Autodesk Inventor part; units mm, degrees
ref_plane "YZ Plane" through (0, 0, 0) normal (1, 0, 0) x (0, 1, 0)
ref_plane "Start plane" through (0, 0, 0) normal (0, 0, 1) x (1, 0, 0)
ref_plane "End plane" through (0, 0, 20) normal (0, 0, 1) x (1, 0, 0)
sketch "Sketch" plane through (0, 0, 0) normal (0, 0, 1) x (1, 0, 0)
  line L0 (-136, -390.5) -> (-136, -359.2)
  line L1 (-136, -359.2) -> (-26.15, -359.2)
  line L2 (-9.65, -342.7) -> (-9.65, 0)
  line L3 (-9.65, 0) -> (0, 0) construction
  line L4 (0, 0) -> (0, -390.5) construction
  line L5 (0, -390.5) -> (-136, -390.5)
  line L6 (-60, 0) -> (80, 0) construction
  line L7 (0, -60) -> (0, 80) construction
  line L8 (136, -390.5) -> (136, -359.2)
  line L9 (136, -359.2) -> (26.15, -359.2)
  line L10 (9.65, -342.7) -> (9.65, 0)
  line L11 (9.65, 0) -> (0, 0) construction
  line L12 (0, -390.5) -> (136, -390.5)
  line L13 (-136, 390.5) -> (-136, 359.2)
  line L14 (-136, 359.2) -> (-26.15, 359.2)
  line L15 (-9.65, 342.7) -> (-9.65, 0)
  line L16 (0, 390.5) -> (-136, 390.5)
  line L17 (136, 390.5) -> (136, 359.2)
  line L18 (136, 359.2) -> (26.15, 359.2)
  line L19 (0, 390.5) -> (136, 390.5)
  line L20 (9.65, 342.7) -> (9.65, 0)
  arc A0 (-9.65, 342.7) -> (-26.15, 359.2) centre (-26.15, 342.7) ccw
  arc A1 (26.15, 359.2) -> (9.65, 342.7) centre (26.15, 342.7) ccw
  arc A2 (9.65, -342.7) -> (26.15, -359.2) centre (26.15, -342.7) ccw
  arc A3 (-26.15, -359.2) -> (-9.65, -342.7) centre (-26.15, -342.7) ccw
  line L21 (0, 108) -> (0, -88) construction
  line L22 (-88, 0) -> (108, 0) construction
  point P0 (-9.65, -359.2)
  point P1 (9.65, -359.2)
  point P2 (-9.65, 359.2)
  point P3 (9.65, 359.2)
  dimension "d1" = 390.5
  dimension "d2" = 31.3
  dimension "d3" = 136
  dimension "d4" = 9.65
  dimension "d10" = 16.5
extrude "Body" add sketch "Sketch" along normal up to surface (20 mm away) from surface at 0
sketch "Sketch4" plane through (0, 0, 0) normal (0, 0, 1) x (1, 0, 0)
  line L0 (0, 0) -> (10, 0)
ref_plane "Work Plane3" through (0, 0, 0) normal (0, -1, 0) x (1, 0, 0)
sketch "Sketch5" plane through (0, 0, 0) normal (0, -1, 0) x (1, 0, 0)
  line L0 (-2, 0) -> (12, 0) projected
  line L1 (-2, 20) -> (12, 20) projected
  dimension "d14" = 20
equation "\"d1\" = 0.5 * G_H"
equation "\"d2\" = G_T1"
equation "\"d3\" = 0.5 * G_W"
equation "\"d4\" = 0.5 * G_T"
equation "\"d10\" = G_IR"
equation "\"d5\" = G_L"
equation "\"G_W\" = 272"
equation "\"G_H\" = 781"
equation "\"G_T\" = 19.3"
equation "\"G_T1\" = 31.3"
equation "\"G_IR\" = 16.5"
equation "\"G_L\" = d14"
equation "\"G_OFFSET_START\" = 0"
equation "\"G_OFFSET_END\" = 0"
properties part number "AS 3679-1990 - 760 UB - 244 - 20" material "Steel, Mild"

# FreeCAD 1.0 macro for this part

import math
import FreeCAD as App
import Part
import Sketcher

doc = App.newDocument("Part")
body = doc.addObject("PartDesign::Body", "Body")

# Sketch on XY plane
sketch1 = body.newObject("Sketcher::SketchObject", "Sketch")
sketch1.AttachmentSupport = (doc.getObject("XY_Plane"), [""])
sketch1.MapMode = "FlatFace"
sketch1.addGeometry([
    Part.LineSegment(App.Vector(-136, -359, 0), App.Vector(-136, -390, 0)),  # 0
    Part.LineSegment(App.Vector(-136, -390, 0), App.Vector(136, -390, 0)),  # 1
    Part.LineSegment(App.Vector(136, -390, 0), App.Vector(136, -359, 0)),  # 2
    Part.LineSegment(App.Vector(136, -359, 0), App.Vector(26, -359, 0)),  # 3
    Part.ArcOfCircle(Part.Circle(App.Vector(26, -343, 0), App.Vector(0, 0, 1), 16), math.radians(180), math.radians(270)),  # 4
    Part.LineSegment(App.Vector(10, -343, 0), App.Vector(10, 343, 0)),  # 5
    Part.ArcOfCircle(Part.Circle(App.Vector(26, 343, 0), App.Vector(0, 0, 1), 16), math.radians(90), math.radians(180)),  # 6
    Part.LineSegment(App.Vector(26, 359, 0), App.Vector(136, 359, 0)),  # 7
    Part.LineSegment(App.Vector(136, 359, 0), App.Vector(136, 390, 0)),  # 8
    Part.LineSegment(App.Vector(136, 390, 0), App.Vector(-136, 390, 0)),  # 9
    Part.LineSegment(App.Vector(-136, 390, 0), App.Vector(-136, 359, 0)),  # 10
    Part.LineSegment(App.Vector(-136, 359, 0), App.Vector(-26, 359, 0)),  # 11
    Part.ArcOfCircle(Part.Circle(App.Vector(-26, 343, 0), App.Vector(0, 0, 1), 16), math.radians(0), math.radians(90)),  # 12
    Part.LineSegment(App.Vector(-10, 343, 0), App.Vector(-10, -343, 0)),  # 13
    Part.ArcOfCircle(Part.Circle(App.Vector(-26, -343, 0), App.Vector(0, 0, 1), 16), math.radians(-90), math.radians(0)),  # 14
    Part.LineSegment(App.Vector(-26, -359, 0), App.Vector(-136, -359, 0)),  # 15
], False)
sketch1.addConstraint([
    Sketcher.Constraint("Coincident", 0, 2, 1, 1),
    Sketcher.Constraint("Coincident", 1, 2, 2, 1),
    Sketcher.Constraint("Coincident", 2, 2, 3, 1),
    Sketcher.Constraint("Tangent", 3, 2, 4, 2),
    Sketcher.Constraint("Tangent", 4, 1, 5, 1),
    Sketcher.Constraint("Tangent", 5, 2, 6, 2),
    Sketcher.Constraint("Tangent", 6, 1, 7, 1),
    Sketcher.Constraint("Coincident", 7, 2, 8, 1),
    Sketcher.Constraint("Coincident", 8, 2, 9, 1),
    Sketcher.Constraint("Coincident", 9, 2, 10, 1),
    Sketcher.Constraint("Coincident", 10, 2, 11, 1),
    Sketcher.Constraint("Tangent", 11, 2, 12, 2),
    Sketcher.Constraint("Tangent", 12, 1, 13, 1),
    Sketcher.Constraint("Tangent", 13, 2, 14, 2),
    Sketcher.Constraint("Tangent", 14, 1, 15, 1),
    Sketcher.Constraint("Coincident", 15, 2, 0, 1),
    Sketcher.Constraint("Vertical", 0),
    Sketcher.Constraint("Horizontal", 1),
    Sketcher.Constraint("Vertical", 2),
    Sketcher.Constraint("Horizontal", 3),
    Sketcher.Constraint("Vertical", 5),
    Sketcher.Constraint("Horizontal", 7),
    Sketcher.Constraint("Vertical", 8),
    Sketcher.Constraint("Horizontal", 9),
    Sketcher.Constraint("Vertical", 10),
    Sketcher.Constraint("Horizontal", 11),
    Sketcher.Constraint("Vertical", 13),
    Sketcher.Constraint("Horizontal", 15),
    Sketcher.Constraint("Equal", 4, 6),
    Sketcher.Constraint("Equal", 6, 12),
    Sketcher.Constraint("Equal", 12, 14),
    Sketcher.Constraint("Symmetric", 4, 3, 12, 3, -1, 1),
    Sketcher.Constraint("Symmetric", 0, 2, 8, 2, -1, 1),
    Sketcher.Constraint("Symmetric", 7, 2, 10, 2, -2),
    Sketcher.Constraint("Symmetric", 2, 2, 15, 2, -2),
    Sketcher.Constraint("Radius", 4, 16.5),
    Sketcher.Constraint("DistanceY", 0, 2, 0, 1, 31.3),
    Sketcher.Constraint("DistanceX", 0, 2, -1, 1, 136.0),
    Sketcher.Constraint("DistanceY", 0, 2, -1, 1, 390.5),
    Sketcher.Constraint("DistanceX", -1, 1, 4, 1, 9.65),
])
pad1 = body.newObject("PartDesign::Pad", "Pad")
pad1.Profile = sketch1
pad1.Length = 20

doc.recompute()
